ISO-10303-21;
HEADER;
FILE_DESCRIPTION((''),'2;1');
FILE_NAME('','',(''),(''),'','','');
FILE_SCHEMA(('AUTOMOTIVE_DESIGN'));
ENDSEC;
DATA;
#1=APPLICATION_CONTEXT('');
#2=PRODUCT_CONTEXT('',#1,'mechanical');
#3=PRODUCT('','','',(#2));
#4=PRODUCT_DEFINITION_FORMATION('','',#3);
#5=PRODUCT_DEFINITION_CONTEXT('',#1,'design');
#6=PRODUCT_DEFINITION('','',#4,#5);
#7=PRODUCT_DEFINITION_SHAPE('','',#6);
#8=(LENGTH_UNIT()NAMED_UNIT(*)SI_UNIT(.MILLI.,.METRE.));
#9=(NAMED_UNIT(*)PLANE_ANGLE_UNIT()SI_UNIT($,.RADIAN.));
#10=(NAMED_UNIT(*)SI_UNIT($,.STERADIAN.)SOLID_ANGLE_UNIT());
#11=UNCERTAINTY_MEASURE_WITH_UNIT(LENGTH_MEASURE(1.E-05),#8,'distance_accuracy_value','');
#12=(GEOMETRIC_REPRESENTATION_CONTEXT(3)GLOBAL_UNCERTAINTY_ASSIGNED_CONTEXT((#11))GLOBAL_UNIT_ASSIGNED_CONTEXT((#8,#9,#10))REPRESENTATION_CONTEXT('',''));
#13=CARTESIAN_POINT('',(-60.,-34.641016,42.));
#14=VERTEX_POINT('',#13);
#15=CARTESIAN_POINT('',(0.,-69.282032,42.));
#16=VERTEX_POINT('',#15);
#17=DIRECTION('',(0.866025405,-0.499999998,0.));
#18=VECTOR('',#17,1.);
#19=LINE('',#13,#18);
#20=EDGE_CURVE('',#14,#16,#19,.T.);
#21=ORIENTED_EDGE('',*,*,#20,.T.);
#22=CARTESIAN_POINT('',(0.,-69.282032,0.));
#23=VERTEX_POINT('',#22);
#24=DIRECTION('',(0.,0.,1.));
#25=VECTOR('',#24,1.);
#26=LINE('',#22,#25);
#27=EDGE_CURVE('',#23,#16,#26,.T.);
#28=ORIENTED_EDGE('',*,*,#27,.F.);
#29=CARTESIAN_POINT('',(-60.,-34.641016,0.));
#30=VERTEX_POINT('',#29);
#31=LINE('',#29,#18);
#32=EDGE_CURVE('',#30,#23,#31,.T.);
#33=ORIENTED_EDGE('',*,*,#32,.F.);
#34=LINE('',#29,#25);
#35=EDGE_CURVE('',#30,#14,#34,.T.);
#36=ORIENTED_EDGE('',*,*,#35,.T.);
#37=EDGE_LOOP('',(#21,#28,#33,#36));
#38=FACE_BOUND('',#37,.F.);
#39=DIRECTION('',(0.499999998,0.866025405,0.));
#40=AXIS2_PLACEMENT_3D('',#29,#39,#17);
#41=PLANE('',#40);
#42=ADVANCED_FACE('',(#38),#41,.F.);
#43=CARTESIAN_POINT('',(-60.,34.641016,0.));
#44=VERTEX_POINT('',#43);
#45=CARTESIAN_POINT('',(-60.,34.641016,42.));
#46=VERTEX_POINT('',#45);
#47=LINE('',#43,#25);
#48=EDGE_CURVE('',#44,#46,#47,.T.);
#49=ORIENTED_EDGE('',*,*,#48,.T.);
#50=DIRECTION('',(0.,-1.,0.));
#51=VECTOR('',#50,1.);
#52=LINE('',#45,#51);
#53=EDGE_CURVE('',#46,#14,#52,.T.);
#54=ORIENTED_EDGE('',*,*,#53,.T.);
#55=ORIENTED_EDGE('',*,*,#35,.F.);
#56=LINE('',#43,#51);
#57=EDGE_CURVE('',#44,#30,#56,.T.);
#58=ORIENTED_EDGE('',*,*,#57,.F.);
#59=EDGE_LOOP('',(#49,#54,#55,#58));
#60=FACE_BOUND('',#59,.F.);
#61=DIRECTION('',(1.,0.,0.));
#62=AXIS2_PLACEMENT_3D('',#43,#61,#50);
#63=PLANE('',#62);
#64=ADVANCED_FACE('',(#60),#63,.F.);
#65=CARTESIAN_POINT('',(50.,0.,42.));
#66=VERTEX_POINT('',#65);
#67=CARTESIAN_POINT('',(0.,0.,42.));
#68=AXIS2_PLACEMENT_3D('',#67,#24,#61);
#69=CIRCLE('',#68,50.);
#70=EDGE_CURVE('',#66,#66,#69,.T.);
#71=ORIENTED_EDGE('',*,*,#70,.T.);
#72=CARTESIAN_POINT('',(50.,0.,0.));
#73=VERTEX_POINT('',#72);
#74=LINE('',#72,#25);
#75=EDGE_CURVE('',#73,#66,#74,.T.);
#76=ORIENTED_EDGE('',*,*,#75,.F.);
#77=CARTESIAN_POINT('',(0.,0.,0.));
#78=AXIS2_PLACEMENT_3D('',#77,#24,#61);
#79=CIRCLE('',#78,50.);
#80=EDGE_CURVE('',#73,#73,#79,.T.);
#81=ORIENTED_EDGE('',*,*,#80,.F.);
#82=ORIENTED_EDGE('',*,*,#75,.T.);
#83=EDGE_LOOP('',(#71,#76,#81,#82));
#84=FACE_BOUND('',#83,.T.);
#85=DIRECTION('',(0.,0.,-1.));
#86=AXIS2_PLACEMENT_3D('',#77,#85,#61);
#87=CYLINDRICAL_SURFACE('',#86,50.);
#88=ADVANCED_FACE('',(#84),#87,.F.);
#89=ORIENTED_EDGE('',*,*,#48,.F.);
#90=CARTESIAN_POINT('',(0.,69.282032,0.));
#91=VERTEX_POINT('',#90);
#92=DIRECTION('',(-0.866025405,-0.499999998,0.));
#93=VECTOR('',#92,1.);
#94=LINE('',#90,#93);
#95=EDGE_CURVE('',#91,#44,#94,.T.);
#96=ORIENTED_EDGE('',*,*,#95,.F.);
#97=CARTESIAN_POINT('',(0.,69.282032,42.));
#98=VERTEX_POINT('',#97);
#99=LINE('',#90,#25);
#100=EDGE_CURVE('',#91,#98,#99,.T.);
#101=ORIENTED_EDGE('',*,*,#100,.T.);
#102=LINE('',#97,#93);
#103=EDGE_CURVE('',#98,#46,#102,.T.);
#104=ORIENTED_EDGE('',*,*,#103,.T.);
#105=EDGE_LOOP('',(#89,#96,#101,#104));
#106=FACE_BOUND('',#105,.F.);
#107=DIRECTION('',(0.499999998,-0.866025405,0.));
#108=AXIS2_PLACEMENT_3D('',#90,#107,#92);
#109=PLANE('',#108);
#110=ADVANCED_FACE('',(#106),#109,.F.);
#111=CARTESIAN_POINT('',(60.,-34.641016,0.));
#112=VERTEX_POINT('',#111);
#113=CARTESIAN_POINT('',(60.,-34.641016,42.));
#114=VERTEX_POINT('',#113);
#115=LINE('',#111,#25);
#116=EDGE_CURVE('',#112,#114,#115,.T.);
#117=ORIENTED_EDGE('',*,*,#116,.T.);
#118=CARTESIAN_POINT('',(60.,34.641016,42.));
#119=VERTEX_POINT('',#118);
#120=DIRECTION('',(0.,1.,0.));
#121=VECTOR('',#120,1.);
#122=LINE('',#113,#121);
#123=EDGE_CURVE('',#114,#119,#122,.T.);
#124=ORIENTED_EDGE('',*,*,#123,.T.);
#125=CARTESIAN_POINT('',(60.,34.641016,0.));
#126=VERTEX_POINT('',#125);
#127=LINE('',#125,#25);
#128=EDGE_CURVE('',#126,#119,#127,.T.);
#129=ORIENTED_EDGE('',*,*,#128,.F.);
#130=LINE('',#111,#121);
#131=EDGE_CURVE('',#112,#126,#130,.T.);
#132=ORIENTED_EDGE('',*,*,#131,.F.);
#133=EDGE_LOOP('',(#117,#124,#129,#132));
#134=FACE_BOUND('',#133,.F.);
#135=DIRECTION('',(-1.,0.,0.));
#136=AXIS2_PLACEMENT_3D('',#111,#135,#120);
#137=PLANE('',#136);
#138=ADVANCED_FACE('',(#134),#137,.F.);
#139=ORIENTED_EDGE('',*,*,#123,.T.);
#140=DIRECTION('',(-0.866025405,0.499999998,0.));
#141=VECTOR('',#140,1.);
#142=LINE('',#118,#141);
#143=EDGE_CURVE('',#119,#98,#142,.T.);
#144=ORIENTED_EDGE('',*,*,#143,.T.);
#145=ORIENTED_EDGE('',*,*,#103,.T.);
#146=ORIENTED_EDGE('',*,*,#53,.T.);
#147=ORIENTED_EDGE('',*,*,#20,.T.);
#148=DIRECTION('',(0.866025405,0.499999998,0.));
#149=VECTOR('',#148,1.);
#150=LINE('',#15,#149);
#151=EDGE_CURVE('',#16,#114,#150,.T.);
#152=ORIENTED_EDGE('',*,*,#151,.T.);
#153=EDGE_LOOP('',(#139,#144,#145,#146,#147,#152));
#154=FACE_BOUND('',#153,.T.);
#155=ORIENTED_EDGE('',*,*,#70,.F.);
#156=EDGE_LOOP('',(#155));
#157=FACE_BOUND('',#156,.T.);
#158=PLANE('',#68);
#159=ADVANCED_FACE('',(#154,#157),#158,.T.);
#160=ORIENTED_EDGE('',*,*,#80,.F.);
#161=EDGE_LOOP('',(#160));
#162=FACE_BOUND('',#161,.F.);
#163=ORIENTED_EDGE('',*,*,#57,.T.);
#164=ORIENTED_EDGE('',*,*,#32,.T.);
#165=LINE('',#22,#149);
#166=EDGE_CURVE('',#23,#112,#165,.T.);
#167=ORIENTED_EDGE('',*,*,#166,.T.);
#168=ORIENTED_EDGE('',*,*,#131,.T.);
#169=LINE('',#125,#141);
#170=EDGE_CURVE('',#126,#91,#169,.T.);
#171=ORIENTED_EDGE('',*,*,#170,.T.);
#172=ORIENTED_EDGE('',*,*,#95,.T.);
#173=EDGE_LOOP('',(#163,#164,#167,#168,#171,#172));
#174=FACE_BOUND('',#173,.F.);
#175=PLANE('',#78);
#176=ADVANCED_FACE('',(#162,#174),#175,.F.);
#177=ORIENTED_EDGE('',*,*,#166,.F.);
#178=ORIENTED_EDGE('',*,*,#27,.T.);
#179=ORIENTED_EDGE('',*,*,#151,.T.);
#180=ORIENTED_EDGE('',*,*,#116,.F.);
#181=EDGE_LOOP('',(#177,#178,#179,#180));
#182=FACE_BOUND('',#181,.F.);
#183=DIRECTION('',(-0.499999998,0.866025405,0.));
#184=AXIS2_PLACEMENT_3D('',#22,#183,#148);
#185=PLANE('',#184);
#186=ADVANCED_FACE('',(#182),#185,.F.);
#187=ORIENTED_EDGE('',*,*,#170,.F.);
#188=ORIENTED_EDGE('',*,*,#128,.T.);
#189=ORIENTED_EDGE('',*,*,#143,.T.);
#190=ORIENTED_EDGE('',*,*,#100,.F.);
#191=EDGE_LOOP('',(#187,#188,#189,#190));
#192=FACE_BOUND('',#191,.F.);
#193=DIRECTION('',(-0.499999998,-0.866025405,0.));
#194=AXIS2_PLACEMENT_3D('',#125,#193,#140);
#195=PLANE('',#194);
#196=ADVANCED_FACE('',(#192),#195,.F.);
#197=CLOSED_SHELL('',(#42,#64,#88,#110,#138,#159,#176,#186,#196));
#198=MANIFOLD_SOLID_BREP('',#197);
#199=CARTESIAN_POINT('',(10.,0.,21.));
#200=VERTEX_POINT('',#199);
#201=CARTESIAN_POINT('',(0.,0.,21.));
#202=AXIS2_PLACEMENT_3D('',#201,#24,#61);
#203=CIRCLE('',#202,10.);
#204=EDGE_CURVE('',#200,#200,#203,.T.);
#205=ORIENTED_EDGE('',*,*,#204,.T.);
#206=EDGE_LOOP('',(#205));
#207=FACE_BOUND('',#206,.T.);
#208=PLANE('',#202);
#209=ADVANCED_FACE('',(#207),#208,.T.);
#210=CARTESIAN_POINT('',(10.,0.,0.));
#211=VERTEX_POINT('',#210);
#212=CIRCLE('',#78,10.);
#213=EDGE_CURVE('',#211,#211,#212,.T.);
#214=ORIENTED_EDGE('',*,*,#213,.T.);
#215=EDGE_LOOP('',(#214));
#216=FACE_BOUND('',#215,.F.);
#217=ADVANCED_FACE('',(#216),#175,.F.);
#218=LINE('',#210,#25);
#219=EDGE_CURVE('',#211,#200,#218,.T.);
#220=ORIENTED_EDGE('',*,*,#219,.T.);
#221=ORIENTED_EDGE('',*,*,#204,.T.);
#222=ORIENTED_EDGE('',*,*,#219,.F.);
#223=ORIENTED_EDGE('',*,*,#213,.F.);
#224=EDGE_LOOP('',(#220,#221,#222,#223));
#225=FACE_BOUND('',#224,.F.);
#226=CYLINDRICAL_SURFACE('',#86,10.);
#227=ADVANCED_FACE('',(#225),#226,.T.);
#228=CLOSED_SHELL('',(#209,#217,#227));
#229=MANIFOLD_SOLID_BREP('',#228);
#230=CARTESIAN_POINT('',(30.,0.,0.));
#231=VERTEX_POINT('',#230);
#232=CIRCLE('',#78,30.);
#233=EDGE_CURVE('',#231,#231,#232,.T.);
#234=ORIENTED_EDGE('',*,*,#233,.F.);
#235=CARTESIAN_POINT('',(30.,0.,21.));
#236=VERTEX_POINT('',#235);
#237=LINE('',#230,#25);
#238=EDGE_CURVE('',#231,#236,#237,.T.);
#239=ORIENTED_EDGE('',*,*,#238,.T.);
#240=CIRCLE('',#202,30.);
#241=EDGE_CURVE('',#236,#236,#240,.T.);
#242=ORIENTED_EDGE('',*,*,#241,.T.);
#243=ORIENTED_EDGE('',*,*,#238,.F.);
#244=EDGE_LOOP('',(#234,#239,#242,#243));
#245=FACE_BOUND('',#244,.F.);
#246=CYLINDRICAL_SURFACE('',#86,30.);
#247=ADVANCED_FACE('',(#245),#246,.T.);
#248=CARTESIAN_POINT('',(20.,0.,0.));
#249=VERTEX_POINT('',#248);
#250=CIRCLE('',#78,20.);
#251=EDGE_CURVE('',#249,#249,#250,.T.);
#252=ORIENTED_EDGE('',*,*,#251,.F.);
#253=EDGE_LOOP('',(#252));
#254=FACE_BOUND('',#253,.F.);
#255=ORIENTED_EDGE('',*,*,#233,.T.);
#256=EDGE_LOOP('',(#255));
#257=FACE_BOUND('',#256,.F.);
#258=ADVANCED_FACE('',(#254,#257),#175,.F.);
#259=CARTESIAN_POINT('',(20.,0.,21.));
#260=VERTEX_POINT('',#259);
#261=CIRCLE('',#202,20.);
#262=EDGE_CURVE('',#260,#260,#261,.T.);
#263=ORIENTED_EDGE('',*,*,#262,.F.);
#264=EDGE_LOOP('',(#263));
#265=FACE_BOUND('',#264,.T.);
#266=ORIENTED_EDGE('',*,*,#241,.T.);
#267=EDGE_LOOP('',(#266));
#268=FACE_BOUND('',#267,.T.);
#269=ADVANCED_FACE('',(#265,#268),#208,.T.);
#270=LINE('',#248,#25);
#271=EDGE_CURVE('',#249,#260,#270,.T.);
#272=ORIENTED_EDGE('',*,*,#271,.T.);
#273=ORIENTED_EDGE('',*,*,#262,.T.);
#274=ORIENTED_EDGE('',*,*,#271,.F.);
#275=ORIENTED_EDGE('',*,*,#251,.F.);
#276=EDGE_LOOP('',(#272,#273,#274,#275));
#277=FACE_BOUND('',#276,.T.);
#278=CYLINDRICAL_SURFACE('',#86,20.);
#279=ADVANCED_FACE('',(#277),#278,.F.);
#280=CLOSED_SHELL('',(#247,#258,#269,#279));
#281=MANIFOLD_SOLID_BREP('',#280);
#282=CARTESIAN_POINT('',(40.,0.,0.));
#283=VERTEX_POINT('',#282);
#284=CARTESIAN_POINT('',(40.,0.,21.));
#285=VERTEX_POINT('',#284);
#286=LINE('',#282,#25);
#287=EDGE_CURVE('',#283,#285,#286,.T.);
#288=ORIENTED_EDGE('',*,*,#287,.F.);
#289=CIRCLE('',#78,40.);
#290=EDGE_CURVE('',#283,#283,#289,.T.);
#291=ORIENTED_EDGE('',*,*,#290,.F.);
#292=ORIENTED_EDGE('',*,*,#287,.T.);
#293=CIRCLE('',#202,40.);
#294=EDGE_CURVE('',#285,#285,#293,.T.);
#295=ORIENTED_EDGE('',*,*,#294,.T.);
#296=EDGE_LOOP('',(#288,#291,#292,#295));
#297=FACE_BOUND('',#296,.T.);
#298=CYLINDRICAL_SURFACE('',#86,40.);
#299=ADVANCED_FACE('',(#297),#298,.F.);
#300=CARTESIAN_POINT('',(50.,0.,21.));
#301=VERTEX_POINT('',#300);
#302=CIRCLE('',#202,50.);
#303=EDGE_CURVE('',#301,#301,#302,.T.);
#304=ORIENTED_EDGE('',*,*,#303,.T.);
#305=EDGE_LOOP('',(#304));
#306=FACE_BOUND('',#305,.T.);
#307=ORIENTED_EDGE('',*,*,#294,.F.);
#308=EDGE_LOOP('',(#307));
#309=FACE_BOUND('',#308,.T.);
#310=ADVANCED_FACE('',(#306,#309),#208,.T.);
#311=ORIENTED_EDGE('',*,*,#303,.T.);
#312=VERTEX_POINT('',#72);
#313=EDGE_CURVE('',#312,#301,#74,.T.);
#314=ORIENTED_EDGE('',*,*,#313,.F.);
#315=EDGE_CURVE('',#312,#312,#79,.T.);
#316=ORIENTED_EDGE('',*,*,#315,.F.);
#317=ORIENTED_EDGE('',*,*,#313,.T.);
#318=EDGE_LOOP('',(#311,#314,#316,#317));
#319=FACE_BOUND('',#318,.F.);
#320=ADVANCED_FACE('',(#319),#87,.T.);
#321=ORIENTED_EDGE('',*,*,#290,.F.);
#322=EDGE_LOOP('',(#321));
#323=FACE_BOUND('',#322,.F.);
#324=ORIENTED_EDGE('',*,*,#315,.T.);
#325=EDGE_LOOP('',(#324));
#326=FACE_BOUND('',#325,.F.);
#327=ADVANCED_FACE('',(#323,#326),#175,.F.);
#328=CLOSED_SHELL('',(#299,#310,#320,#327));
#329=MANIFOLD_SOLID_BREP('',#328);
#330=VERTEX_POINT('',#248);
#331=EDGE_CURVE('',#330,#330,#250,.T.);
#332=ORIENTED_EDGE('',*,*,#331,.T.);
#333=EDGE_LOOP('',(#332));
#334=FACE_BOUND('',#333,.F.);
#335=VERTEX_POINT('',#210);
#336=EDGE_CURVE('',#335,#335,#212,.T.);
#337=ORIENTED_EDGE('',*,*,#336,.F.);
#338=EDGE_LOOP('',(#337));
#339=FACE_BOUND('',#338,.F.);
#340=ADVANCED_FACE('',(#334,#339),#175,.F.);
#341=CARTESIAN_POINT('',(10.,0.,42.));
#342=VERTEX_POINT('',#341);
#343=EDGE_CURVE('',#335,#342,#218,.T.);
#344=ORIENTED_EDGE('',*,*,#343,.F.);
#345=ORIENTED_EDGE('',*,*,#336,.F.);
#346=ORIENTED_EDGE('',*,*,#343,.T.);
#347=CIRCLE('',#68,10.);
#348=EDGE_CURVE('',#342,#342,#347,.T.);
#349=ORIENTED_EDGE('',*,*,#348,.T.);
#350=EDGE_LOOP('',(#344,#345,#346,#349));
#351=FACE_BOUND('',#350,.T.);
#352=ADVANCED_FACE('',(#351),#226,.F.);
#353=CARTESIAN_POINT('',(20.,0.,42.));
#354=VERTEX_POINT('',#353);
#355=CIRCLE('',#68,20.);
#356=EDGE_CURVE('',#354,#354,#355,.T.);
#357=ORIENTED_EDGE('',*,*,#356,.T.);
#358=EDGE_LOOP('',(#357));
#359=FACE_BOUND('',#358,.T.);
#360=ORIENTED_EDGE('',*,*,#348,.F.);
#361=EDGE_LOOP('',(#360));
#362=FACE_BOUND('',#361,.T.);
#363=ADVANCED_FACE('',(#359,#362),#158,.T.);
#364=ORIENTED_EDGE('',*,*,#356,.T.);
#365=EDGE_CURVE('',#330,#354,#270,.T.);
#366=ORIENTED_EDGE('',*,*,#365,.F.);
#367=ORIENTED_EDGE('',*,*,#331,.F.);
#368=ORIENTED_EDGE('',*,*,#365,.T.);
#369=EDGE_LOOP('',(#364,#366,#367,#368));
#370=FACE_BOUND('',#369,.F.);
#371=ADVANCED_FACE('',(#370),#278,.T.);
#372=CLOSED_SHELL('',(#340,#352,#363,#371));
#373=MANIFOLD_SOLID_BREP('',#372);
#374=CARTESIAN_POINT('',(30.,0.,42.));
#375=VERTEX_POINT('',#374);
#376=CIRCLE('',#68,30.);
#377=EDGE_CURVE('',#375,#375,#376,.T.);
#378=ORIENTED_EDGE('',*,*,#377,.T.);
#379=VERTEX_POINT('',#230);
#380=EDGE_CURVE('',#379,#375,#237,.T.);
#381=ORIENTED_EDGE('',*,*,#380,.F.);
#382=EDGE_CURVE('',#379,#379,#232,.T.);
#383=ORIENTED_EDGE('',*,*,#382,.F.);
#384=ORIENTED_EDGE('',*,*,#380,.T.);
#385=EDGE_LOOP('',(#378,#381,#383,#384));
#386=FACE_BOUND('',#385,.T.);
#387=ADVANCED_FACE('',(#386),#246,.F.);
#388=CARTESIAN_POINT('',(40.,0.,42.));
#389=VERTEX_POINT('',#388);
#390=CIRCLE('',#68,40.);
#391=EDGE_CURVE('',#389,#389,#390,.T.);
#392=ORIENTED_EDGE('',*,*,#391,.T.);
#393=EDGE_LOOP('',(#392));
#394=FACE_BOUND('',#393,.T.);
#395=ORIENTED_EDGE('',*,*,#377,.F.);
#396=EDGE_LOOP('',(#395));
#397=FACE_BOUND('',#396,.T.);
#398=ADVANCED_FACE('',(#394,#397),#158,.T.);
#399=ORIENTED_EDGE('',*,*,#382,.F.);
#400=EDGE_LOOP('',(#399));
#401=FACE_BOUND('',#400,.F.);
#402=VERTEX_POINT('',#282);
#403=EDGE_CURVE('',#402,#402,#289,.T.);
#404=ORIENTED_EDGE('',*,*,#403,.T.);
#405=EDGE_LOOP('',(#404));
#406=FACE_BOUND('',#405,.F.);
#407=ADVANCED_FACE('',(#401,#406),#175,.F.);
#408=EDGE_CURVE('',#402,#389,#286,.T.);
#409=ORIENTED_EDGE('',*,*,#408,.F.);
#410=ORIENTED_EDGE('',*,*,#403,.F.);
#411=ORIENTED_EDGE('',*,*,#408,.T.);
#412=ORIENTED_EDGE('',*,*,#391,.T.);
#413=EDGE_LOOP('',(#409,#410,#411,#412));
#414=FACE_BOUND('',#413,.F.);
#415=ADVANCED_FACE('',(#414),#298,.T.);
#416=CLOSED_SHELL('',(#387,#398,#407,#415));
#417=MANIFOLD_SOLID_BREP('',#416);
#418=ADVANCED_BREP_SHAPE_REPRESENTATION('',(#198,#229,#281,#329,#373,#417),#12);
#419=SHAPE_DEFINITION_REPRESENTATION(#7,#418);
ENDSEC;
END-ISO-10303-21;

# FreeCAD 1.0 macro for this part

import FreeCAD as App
import Part
import Sketcher
Q = App.Units.Quantity

doc = App.newDocument("Part")
body = doc.addObject("PartDesign::Body", "Body")
body.AllowCompound = True

sketch1 = doc.addObject("Sketcher::SketchObject", "Sketch")
body.addObject(sketch1)
sketch1.AttachmentSupport = (doc.XY_Plane, [""])
sketch1.MapMode = "FlatFace"
sketch1.addGeometry([
    Part.LineSegment(App.Vector(60, -35, 0), App.Vector(60, 35, 0)),
    Part.LineSegment(App.Vector(60, 35, 0), App.Vector(0, 69, 0)),
    Part.LineSegment(App.Vector(0, 69, 0), App.Vector(-60, 35, 0)),
    Part.LineSegment(App.Vector(-60, 35, 0), App.Vector(-60, -35, 0)),
    Part.LineSegment(App.Vector(-60, -35, 0), App.Vector(0, -69, 0)),
    Part.LineSegment(App.Vector(0, -69, 0), App.Vector(60, -35, 0)),
    Part.Circle(App.Vector(0, 0, 0), App.Vector(0, 0, 1), 50),
    Part.Circle(App.Vector(0, 0, 0), App.Vector(0, 0, 1), 40),
    Part.Circle(App.Vector(0, 0, 0), App.Vector(0, 0, 1), 30),
    Part.Circle(App.Vector(0, 0, 0), App.Vector(0, 0, 1), 20),
    Part.Circle(App.Vector(0, 0, 0), App.Vector(0, 0, 1), 10),
], False)
sketch1.addConstraint([
    Sketcher.Constraint("Coincident", 0, 2, 1, 1),
    Sketcher.Constraint("Coincident", 1, 2, 2, 1),
    Sketcher.Constraint("Coincident", 2, 2, 3, 1),
    Sketcher.Constraint("Coincident", 3, 2, 4, 1),
    Sketcher.Constraint("Coincident", 4, 2, 5, 1),
    Sketcher.Constraint("Coincident", 5, 2, 0, 1),
    Sketcher.Constraint("Vertical", 0),
    Sketcher.Constraint("Vertical", 3),
    Sketcher.Constraint("Coincident", 6, 3, -1, 1),
    Sketcher.Constraint("Coincident", 7, 3, -1, 1),
    Sketcher.Constraint("Coincident", 8, 3, -1, 1),
    Sketcher.Constraint("Coincident", 9, 3, -1, 1),
    Sketcher.Constraint("Coincident", 10, 3, -1, 1),
    Sketcher.Constraint("Symmetric", 0, 2, 3, 2, -1, 1),
    Sketcher.Constraint("Symmetric", 1, 2, 4, 2, -1, 1),
    Sketcher.Constraint("PointOnObject", 1, 2, -2),
    Sketcher.Constraint("Parallel", 2, 5),
    Sketcher.Constraint("Horizontal", 0, 2, 2, 2),
    Sketcher.Constraint("Diameter", 6, Q("100 mm")),
    Sketcher.Constraint("Diameter", 7, Q("80 mm")),
    Sketcher.Constraint("Diameter", 8, Q("60 mm")),
    Sketcher.Constraint("Diameter", 9, Q("40 mm")),
    Sketcher.Constraint("Diameter", 10, Q("20 mm")),
    Sketcher.Constraint("Angle", 1, Q("150 deg")),
    Sketcher.Constraint("DistanceX", -1, 1, 0, 2, Q("60 mm")),
    Sketcher.Constraint("DistanceY", 0, 1, 0, 2, Q("69.282032 mm")),
])
pad1 = doc.addObject("PartDesign::Pad", "Pad")
body.addObject(pad1)
pad1.Profile = sketch1
pad1.Length = 42
body2 = doc.addObject("PartDesign::Body", "Body001")
body2.AllowCompound = True

sketch2 = doc.addObject("Sketcher::SketchObject", "Sketch001")
body2.addObject(sketch2)
sketch2.AttachmentSupport = (doc.getObject("XY_Plane001"), [""])
sketch2.MapMode = "FlatFace"
sketch2.addGeometry([
    Part.Circle(App.Vector(0, 0, 0), App.Vector(0, 0, 1), 50),
    Part.Circle(App.Vector(0, 0, 0), App.Vector(0, 0, 1), 40),
    Part.Circle(App.Vector(0, 0, 0), App.Vector(0, 0, 1), 30),
    Part.Circle(App.Vector(0, 0, 0), App.Vector(0, 0, 1), 20),
    Part.Circle(App.Vector(0, 0, 0), App.Vector(0, 0, 1), 10),
], False)
sketch2.addConstraint([
    Sketcher.Constraint("Coincident", 0, 3, -1, 1),
    Sketcher.Constraint("Coincident", 1, 3, -1, 1),
    Sketcher.Constraint("Coincident", 2, 3, -1, 1),
    Sketcher.Constraint("Coincident", 3, 3, -1, 1),
    Sketcher.Constraint("Coincident", 4, 3, -1, 1),
    Sketcher.Constraint("Diameter", 0, Q("100 mm")),
    Sketcher.Constraint("Diameter", 1, Q("80 mm")),
    Sketcher.Constraint("Diameter", 2, Q("60 mm")),
    Sketcher.Constraint("Diameter", 3, Q("40 mm")),
    Sketcher.Constraint("Diameter", 4, Q("20 mm")),
])
pad2 = doc.addObject("PartDesign::Pad", "Pad001")
body2.addObject(pad2)
pad2.Profile = sketch2
pad2.Length = 21

doc.recompute()
